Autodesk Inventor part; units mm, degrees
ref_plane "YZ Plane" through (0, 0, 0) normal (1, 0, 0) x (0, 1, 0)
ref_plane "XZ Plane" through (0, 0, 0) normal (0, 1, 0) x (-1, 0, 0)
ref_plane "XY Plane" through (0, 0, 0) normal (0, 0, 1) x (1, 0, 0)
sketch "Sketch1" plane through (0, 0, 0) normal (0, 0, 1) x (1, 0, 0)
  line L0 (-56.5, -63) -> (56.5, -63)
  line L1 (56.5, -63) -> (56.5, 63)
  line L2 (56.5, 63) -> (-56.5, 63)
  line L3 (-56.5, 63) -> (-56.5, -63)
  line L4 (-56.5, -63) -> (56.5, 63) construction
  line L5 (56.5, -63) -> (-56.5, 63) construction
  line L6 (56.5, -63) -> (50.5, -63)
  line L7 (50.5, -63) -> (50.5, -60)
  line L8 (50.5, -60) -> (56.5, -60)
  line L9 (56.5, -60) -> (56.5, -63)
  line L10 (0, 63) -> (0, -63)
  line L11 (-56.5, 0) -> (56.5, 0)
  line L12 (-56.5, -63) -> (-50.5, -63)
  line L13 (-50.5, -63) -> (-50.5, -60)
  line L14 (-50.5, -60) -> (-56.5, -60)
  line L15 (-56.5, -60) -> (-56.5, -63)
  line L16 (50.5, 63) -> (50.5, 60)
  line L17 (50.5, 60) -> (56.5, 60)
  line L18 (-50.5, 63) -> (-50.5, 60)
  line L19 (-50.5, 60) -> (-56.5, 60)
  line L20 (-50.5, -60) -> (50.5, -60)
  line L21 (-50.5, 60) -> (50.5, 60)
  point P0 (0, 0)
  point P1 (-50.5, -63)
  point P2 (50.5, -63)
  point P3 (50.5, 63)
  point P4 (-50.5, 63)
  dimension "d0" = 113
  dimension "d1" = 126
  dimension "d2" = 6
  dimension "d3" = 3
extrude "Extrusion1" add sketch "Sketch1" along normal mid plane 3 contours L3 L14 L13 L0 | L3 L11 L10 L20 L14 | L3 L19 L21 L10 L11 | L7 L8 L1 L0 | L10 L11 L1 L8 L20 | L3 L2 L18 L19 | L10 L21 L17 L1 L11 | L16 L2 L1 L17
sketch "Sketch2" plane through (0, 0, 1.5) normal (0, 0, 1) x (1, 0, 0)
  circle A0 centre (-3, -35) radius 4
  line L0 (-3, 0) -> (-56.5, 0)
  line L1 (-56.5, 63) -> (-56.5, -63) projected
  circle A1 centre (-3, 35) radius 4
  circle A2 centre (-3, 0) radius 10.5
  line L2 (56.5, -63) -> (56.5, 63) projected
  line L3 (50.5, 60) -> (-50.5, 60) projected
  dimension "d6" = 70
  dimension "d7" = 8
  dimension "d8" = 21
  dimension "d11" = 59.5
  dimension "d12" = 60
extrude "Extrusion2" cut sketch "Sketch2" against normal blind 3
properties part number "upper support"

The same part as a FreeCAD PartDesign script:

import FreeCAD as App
import Part
import Sketcher
from FreeCAD import Vector
Q = App.Units.Quantity

doc = App.newDocument("Part")
body = doc.addObject("PartDesign::Body", "Body")

# Sketch on XY plane
sketch1 = doc.addObject("Sketcher::SketchObject", "Sketch")
body.addObject(sketch1)
sketch1.AttachmentSupport = (doc.XY_Plane, [""])
sketch1.MapMode = "FlatFace"
sketch1.addGeometry(Part.LineSegment(Vector(-56.5, -63, 0), Vector(-50.5, -63, 0)), False)
sketch1.addGeometry(Part.LineSegment(Vector(-50.5, -63, 0), Vector(-50.5, -60, 0)), False)
sketch1.addGeometry(Part.LineSegment(Vector(-50.5, -60, 0), Vector(50.5, -60, 0)), False)
sketch1.addGeometry(Part.LineSegment(Vector(50.5, -60, 0), Vector(50.5, -63, 0)), False)
sketch1.addGeometry(Part.LineSegment(Vector(50.5, -63, 0), Vector(56.5, -63, 0)), False)
sketch1.addGeometry(Part.LineSegment(Vector(56.5, -63, 0), Vector(56.5, 63, 0)), False)
sketch1.addGeometry(Part.LineSegment(Vector(56.5, 63, 0), Vector(50.5, 63, 0)), False)
sketch1.addGeometry(Part.LineSegment(Vector(50.5, 63, 0), Vector(50.5, 60, 0)), False)
sketch1.addGeometry(Part.LineSegment(Vector(50.5, 60, 0), Vector(-50.5, 60, 0)), False)
sketch1.addGeometry(Part.LineSegment(Vector(-50.5, 60, 0), Vector(-50.5, 63, 0)), False)
sketch1.addGeometry(Part.LineSegment(Vector(-50.5, 63, 0), Vector(-56.5, 63, 0)), False)
sketch1.addGeometry(Part.LineSegment(Vector(-56.5, 63, 0), Vector(-56.5, -63, 0)), False)
sketch1.addConstraint(Sketcher.Constraint("Coincident", 0, 2, 1, 1))
sketch1.addConstraint(Sketcher.Constraint("Coincident", 1, 2, 2, 1))
sketch1.addConstraint(Sketcher.Constraint("Coincident", 2, 2, 3, 1))
sketch1.addConstraint(Sketcher.Constraint("Coincident", 3, 2, 4, 1))
sketch1.addConstraint(Sketcher.Constraint("Coincident", 4, 2, 5, 1))
sketch1.addConstraint(Sketcher.Constraint("Coincident", 5, 2, 6, 1))
sketch1.addConstraint(Sketcher.Constraint("Coincident", 6, 2, 7, 1))
sketch1.addConstraint(Sketcher.Constraint("Coincident", 7, 2, 8, 1))
sketch1.addConstraint(Sketcher.Constraint("Coincident", 8, 2, 9, 1))
sketch1.addConstraint(Sketcher.Constraint("Coincident", 9, 2, 10, 1))
sketch1.addConstraint(Sketcher.Constraint("Coincident", 10, 2, 11, 1))
sketch1.addConstraint(Sketcher.Constraint("Coincident", 11, 2, 0, 1))
sketch1.addConstraint(Sketcher.Constraint("Horizontal", 0))
sketch1.addConstraint(Sketcher.Constraint("Vertical", 1))
sketch1.addConstraint(Sketcher.Constraint("Horizontal", 2))
sketch1.addConstraint(Sketcher.Constraint("Vertical", 3))
sketch1.addConstraint(Sketcher.Constraint("Horizontal", 4))
sketch1.addConstraint(Sketcher.Constraint("Vertical", 5))
sketch1.addConstraint(Sketcher.Constraint("Horizontal", 6))
sketch1.addConstraint(Sketcher.Constraint("Vertical", 7))
sketch1.addConstraint(Sketcher.Constraint("Horizontal", 8))
sketch1.addConstraint(Sketcher.Constraint("Vertical", 9))
sketch1.addConstraint(Sketcher.Constraint("Horizontal", 10))
sketch1.addConstraint(Sketcher.Constraint("Vertical", 11))
sketch1.addConstraint(Sketcher.Constraint("Symmetric", 0, 2, 6, 2, -1, 1))
sketch1.addConstraint(Sketcher.Constraint("Symmetric", 2, 2, 8, 2, -1, 1))
sketch1.addConstraint(Sketcher.Constraint("Symmetric", 4, 2, 10, 2, -1, 1))
sketch1.addConstraint(Sketcher.Constraint("Symmetric", 0, 2, 3, 2, -2))
sketch1.addConstraint(Sketcher.Constraint("DistanceX", 0, 1, 0, 2, Q("6 mm")))
sketch1.addConstraint(Sketcher.Constraint("DistanceY", 1, 1, 1, 2, Q("3 mm")))
sketch1.addConstraint(Sketcher.Constraint("DistanceY", 5, 1, 5, 2, Q("126 mm")))
sketch1.addConstraint(Sketcher.Constraint("DistanceX", 10, 2, 5, 2, Q("113 mm")))
pad1 = doc.addObject("PartDesign::Pad", "Pad")
body.addObject(pad1)
pad1.Profile = sketch1
pad1.Length = 3
pad1.Midplane = True

# Sketch on XY plane
sketch2 = doc.addObject("Sketcher::SketchObject", "Sketch001")
body.addObject(sketch2)
sketch2.AttachmentSupport = (doc.XY_Plane, [""])
sketch2.MapMode = "FlatFace"
sketch2.AttachmentOffset = App.Placement(Vector(0, 0, 1.5), App.Rotation())
sketch2.addGeometry(Part.Circle(Vector(-3, -35, 0), Vector(0, 0, 1), 4), False)
sketch2.addGeometry(Part.Circle(Vector(-3, 35, 0), Vector(0, 0, 1), 4), False)
sketch2.addGeometry(Part.Circle(Vector(-3, 0, 0), Vector(0, 0, 1), 10.5), False)
sketch2.addConstraint(Sketcher.Constraint("Equal", 0, 1))
sketch2.addConstraint(Sketcher.Constraint("Symmetric", 0, 3, 1, 3, -1))
sketch2.addConstraint(Sketcher.Constraint("PointOnObject", 2, 3, -1))
sketch2.addConstraint(Sketcher.Constraint("Vertical", 1, 3, 2, 3))
sketch2.addConstraint(Sketcher.Constraint("Diameter", 0, Q("8 mm")))
sketch2.addConstraint(Sketcher.Constraint("Diameter", 2, Q("21 mm")))
sketch2.addConstraint(Sketcher.Constraint("DistanceY", 0, 3, 1, 3, Q("70 mm")))
sketch2.addConstraint(Sketcher.Constraint("DistanceX", 0, 3, -1, 1, Q("3 mm")))
pocket1 = doc.addObject("PartDesign::Pocket", "Pocket")
body.addObject(pocket1)
pocket1.Profile = sketch2
pocket1.Length = 3

doc.recompute()
